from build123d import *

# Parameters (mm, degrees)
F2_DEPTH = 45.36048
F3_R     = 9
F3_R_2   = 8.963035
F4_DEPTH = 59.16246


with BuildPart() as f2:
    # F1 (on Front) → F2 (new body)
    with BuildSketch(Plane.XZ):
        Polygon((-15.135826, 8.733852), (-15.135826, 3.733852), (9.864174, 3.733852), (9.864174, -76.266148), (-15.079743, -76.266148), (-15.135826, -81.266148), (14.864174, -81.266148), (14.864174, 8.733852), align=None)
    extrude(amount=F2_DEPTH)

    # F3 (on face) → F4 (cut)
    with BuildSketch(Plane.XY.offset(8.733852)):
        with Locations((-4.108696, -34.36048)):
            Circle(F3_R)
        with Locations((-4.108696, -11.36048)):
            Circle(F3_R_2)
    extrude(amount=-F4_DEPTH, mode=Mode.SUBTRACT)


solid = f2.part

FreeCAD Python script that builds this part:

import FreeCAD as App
import Part
import Sketcher

V = App.Vector
Q = App.Units.Quantity

doc = App.newDocument("Part")
body = doc.addObject("PartDesign::Body", "Body")

sketch1 = doc.addObject("Sketcher::SketchObject", "Sketch")
body.addObject(sketch1)
sketch1.AttachmentSupport = (doc.XZ_Plane, [""])
sketch1.MapMode = "FlatFace"
sketch1.addGeometry([
    Part.LineSegment(V(-15, 9, 0), V(-15, 4, 0)),
    Part.LineSegment(V(-15, 4, 0), V(10, 4, 0)),
    Part.LineSegment(V(10, 4, 0), V(10, -76, 0)),
    Part.LineSegment(V(10, -76, 0), V(-15, -76, 0)),
    Part.LineSegment(V(-15, -76, 0), V(-15, -81, 0)),
    Part.LineSegment(V(-15, -81, 0), V(15, -81, 0)),
    Part.LineSegment(V(15, -81, 0), V(15, 9, 0)),
    Part.LineSegment(V(15, 9, 0), V(-15, 9, 0)),
], False)
sketch1.addConstraint([
    Sketcher.Constraint("Coincident", 0, 2, 1, 1),
    Sketcher.Constraint("Coincident", 1, 2, 2, 1),
    Sketcher.Constraint("Coincident", 2, 2, 3, 1),
    Sketcher.Constraint("Coincident", 3, 2, 4, 1),
    Sketcher.Constraint("Coincident", 4, 2, 5, 1),
    Sketcher.Constraint("Coincident", 5, 2, 6, 1),
    Sketcher.Constraint("Coincident", 6, 2, 7, 1),
    Sketcher.Constraint("Coincident", 7, 2, 0, 1),
    Sketcher.Constraint("Vertical", 0),
    Sketcher.Constraint("Horizontal", 1),
    Sketcher.Constraint("Vertical", 2),
    Sketcher.Constraint("Horizontal", 3),
    Sketcher.Constraint("Horizontal", 5),
    Sketcher.Constraint("Vertical", 6),
    Sketcher.Constraint("Horizontal", 7),
    Sketcher.Constraint("Vertical", 0, 2, 4, 2),
    Sketcher.Constraint("DistanceX", 1, 1, 1, 2, Q("25 mm")),
    Sketcher.Constraint("DistanceX", 5, 1, 5, 2, Q("30 mm")),
    Sketcher.Constraint("DistanceY", 0, 2, 0, 1, Q("5 mm")),
    Sketcher.Constraint("DistanceY", 2, 2, 2, 1, Q("80 mm")),
    Sketcher.Constraint("DistanceY", 6, 1, 6, 2, Q("90 mm")),
    Sketcher.Constraint("DistanceX", 3, 2, 3, 1, Q("24.943917 mm")),
    Sketcher.Constraint("DistanceY", 2, 2, -1, 1, Q("76.266148 mm")),
    Sketcher.Constraint("DistanceX", 0, 2, -1, 1, Q("15.135826 mm")),
])
pad1 = doc.addObject("PartDesign::Pad", "Pad")
body.addObject(pad1)
pad1.Profile = sketch1
pad1.Length = 45.36048

sketch2 = doc.addObject("Sketcher::SketchObject", "Sketch001")
body.addObject(sketch2)
sketch2.AttachmentSupport = (doc.XY_Plane, [""])
sketch2.MapMode = "FlatFace"
sketch2.AttachmentOffset = App.Placement(V(0, 0, 8.733852), App.Rotation())
sketch2.addGeometry([
    Part.Circle(V(-4, -34, 0), V(0, 0, 1), 9),
    Part.Circle(V(-4, -11, 0), V(0, 0, 1), 9),
], False)
sketch2.addConstraint([
    Sketcher.Constraint("Vertical", 0, 3, 1, 3),
    Sketcher.Constraint("Diameter", 0, Q("18 mm")),
    Sketcher.Constraint("DistanceY", 0, 3, 1, 3, Q("23 mm")),
    Sketcher.Constraint("Diameter", 1, Q("17.92607 mm")),
    Sketcher.Constraint("DistanceY", 0, 3, -1, 1, Q("34.36048 mm")),
    Sketcher.Constraint("DistanceX", 0, 3, -1, 1, Q("4.108696 mm")),
])
pocket1 = doc.addObject("PartDesign::Pocket", "Pocket")
body.addObject(pocket1)
pocket1.Profile = sketch2
pocket1.Length = 59.16246

doc.recompute()
